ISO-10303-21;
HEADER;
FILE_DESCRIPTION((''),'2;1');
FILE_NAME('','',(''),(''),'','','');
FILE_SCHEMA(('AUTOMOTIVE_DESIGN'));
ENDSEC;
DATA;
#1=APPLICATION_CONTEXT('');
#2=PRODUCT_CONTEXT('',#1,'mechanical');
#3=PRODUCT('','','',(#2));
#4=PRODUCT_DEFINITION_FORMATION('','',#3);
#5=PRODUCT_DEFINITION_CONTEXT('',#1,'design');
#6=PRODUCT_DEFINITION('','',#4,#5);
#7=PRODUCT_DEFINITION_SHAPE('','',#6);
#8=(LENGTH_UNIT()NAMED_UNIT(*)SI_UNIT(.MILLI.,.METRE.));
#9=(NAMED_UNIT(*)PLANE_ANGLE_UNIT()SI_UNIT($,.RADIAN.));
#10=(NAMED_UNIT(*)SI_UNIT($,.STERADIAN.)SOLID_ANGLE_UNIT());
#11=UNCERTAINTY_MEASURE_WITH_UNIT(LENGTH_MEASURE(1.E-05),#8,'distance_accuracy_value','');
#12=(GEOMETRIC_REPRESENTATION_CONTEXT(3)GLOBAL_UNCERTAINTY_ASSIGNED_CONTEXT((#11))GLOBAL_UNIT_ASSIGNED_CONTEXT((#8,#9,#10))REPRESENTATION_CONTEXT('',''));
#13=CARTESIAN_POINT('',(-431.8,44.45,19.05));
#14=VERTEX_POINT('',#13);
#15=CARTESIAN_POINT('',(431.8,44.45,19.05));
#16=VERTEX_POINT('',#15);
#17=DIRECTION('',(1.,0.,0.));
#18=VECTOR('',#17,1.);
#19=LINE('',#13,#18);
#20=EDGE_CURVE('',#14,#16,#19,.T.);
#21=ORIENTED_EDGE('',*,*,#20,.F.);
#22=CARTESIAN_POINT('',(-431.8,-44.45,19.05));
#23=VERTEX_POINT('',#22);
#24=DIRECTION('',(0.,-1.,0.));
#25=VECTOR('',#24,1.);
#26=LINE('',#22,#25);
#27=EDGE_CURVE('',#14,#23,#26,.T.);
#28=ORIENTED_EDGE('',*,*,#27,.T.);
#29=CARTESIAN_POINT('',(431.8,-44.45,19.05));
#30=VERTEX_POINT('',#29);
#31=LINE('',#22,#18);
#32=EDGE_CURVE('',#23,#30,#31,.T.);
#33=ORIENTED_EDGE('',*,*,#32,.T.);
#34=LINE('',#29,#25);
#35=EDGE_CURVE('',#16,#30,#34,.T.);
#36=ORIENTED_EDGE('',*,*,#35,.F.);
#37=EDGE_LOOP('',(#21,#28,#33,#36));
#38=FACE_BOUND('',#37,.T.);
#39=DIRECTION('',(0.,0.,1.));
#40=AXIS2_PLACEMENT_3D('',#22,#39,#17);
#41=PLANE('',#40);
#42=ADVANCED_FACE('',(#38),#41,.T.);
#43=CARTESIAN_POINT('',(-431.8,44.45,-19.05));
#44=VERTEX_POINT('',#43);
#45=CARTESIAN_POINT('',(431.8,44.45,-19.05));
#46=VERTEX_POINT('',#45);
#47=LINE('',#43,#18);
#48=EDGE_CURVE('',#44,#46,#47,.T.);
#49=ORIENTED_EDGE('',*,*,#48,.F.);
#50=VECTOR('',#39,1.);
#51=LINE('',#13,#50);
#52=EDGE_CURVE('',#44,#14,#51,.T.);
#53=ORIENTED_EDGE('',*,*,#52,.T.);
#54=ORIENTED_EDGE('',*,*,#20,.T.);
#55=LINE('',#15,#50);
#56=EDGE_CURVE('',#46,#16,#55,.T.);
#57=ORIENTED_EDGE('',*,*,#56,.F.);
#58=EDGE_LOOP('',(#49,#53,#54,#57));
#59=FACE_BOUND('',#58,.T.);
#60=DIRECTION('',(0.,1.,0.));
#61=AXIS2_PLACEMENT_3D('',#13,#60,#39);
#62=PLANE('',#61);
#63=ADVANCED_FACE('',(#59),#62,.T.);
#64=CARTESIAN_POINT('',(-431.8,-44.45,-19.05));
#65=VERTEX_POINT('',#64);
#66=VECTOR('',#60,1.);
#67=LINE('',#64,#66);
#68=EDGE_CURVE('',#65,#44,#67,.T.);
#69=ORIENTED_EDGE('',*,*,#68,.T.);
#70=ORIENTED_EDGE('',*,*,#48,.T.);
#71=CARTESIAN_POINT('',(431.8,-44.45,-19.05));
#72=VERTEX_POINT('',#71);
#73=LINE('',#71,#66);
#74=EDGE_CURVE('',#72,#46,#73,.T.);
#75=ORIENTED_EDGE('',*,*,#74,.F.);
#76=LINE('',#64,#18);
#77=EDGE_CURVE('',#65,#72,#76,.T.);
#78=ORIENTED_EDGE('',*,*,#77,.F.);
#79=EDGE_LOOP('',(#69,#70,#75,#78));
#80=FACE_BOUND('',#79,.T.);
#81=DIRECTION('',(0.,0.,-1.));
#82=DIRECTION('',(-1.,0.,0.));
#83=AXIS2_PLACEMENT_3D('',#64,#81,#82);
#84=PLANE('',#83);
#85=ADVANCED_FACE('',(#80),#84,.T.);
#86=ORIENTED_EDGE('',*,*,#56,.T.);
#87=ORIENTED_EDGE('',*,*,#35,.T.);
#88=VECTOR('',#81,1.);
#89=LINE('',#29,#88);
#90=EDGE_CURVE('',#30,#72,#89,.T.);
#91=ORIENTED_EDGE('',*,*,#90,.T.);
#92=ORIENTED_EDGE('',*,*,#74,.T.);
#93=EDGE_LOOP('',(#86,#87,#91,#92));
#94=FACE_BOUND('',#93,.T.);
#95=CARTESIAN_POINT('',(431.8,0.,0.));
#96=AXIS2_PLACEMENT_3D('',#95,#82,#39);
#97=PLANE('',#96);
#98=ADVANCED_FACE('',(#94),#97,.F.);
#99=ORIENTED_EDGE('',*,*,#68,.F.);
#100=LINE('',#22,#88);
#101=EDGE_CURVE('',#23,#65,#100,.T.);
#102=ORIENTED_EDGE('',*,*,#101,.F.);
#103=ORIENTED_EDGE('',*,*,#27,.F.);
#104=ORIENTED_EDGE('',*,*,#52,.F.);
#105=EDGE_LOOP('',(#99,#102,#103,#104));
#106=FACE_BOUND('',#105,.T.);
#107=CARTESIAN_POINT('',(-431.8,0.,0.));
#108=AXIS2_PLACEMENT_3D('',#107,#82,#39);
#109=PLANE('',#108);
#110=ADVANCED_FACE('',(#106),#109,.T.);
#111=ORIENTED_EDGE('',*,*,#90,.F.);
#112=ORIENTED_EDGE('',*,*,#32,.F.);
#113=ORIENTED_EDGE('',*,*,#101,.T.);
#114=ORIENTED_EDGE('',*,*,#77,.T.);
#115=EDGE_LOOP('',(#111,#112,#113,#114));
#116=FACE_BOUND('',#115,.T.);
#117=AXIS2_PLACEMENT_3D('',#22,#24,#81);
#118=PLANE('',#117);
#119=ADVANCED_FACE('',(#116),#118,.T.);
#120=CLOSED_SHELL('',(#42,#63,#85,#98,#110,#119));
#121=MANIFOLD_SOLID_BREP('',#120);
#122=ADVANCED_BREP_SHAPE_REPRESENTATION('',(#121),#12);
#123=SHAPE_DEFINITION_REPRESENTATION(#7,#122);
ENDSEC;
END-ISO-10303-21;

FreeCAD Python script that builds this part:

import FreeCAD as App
import Part
import Sketcher
from FreeCAD import Vector
Q = App.Units.Quantity


def add_polygon(sketch, points):
    """Adds a closed chain of lines whose ends are joined by coincident constraints."""
    first, n = sketch.GeometryCount, len(points)
    for a, b in zip(points, points[1:] + points[:1]):
        sketch.addGeometry(Part.LineSegment(App.Vector(*a, 0), App.Vector(*b, 0)), False)
    for i in range(n):
        sketch.addConstraint(Sketcher.Constraint("Coincident", first + i, 2, first + (i + 1) % n, 1))

doc = App.newDocument("Part")
body = doc.addObject("PartDesign::Body", "Body")

# Sketch on YZ plane
sketch1 = body.newObject("Sketcher::SketchObject", "Sketch")
sketch1.AttachmentSupport = (doc.getObject("YZ_Plane"), [""])
sketch1.MapMode = "FlatFace"
add_polygon(sketch1, [(44.45, 19.05), (-44.45, 19.05), (-44.45, -19.05), (44.45, -19.05)])  # lines 0-3
sketch1.addConstraint(Sketcher.Constraint("Horizontal", 0))
sketch1.addConstraint(Sketcher.Constraint("Vertical", 1))
sketch1.addConstraint(Sketcher.Constraint("Horizontal", 2))
sketch1.addConstraint(Sketcher.Constraint("Vertical", 3))
sketch1.addConstraint(Sketcher.Constraint("Symmetric", 0, 2, 2, 2, -1, 1))
sketch1.addConstraint(Sketcher.Constraint("DistanceX", 0, 2, 0, 1, Q("3.5 in")))
sketch1.addConstraint(Sketcher.Constraint("DistanceY", 1, 2, 1, 1, Q("1.5 in")))
pad1 = body.newObject("PartDesign::Pad", "Pad")
pad1.Profile = sketch1
pad1.Type = "TwoLengths"
pad1.Length = Q("17 in")
pad1.Length2 = Q("17 in")

doc.recompute()
